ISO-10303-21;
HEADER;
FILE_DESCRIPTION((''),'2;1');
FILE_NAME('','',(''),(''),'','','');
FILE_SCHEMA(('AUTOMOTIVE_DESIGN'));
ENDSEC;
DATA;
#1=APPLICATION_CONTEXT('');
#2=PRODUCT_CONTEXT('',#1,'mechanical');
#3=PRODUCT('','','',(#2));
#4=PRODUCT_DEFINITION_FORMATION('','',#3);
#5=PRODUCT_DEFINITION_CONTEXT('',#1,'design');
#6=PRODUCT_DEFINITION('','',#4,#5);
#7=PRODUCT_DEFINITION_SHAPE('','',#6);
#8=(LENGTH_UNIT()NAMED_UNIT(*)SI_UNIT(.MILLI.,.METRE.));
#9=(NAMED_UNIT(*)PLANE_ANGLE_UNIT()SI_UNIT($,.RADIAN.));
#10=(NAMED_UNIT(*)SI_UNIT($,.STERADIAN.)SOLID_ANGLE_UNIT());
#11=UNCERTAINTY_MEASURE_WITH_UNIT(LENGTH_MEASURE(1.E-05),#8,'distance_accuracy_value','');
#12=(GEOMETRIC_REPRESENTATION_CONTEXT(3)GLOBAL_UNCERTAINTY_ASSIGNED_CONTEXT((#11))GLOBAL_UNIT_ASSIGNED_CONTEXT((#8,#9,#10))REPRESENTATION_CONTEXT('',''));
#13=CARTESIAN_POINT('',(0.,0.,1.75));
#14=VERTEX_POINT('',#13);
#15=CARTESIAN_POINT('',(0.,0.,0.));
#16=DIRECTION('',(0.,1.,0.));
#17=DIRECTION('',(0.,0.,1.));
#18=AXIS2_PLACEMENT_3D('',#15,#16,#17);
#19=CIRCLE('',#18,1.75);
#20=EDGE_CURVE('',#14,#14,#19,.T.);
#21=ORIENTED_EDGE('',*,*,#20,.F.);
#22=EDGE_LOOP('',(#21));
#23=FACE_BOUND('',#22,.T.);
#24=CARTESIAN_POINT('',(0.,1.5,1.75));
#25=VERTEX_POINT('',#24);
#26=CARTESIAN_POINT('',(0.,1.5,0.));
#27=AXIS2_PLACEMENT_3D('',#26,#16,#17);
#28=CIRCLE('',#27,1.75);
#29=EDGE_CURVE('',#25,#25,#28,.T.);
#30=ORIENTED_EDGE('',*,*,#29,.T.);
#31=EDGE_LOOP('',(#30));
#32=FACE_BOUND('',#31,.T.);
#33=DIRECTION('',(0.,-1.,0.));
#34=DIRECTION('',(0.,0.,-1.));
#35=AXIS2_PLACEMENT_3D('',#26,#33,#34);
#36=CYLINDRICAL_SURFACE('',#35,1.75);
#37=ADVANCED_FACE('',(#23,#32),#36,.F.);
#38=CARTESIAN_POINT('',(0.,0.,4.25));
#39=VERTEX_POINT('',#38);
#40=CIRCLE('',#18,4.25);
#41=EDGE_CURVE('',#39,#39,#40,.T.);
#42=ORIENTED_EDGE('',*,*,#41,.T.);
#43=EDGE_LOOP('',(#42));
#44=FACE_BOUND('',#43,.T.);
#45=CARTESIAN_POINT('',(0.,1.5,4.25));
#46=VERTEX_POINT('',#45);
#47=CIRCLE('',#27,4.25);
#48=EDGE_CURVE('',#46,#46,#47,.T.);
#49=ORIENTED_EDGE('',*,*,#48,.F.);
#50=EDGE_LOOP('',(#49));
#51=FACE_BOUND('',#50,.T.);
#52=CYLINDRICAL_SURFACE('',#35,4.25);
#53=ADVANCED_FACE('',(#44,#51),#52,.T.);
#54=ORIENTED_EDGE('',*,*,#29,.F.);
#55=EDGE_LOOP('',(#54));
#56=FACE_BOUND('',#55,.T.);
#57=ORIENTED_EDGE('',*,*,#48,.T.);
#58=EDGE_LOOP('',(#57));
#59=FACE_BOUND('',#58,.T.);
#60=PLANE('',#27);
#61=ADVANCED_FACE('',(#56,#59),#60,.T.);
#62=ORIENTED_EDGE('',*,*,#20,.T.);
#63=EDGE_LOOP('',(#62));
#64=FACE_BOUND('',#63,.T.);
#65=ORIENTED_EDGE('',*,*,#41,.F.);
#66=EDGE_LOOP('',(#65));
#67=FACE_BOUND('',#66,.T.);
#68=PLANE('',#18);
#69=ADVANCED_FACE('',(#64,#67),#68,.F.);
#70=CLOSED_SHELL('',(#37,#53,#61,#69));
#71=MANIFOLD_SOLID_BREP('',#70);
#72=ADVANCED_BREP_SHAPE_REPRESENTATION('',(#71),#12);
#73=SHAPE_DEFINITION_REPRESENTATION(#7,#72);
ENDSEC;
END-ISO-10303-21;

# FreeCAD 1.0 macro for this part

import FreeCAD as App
import Part
import Sketcher
from FreeCAD import Vector
Q = App.Units.Quantity

doc = App.newDocument("Part")
body = doc.addObject("PartDesign::Body", "Body")

sketch1 = body.newObject("Sketcher::SketchObject", "Sketch")
sketch1.AttachmentSupport = (doc.getObject("XZ_Plane"), [""])
sketch1.MapMode = "FlatFace"
sketch1.addGeometry(Part.Circle(Vector(0, 0, 0), Vector(0, 0, 1), 4.2), False)
sketch1.addGeometry(Part.Circle(Vector(0, 0, 0), Vector(0, 0, 1), 1.8), False)
sketch1.addConstraint(Sketcher.Constraint("Coincident", 0, 3, -1, 1))
sketch1.addConstraint(Sketcher.Constraint("Coincident", 1, 3, -1, 1))
sketch1.addConstraint(Sketcher.Constraint("Diameter", 0, Q("8.5 mm")))
sketch1.addConstraint(Sketcher.Constraint("Diameter", 1, Q("3.5 mm")))
pad1 = body.newObject("PartDesign::Pad", "Pad")
pad1.Profile = sketch1
pad1.Length = 1.5
pad1.Reversed = True

doc.recompute()
